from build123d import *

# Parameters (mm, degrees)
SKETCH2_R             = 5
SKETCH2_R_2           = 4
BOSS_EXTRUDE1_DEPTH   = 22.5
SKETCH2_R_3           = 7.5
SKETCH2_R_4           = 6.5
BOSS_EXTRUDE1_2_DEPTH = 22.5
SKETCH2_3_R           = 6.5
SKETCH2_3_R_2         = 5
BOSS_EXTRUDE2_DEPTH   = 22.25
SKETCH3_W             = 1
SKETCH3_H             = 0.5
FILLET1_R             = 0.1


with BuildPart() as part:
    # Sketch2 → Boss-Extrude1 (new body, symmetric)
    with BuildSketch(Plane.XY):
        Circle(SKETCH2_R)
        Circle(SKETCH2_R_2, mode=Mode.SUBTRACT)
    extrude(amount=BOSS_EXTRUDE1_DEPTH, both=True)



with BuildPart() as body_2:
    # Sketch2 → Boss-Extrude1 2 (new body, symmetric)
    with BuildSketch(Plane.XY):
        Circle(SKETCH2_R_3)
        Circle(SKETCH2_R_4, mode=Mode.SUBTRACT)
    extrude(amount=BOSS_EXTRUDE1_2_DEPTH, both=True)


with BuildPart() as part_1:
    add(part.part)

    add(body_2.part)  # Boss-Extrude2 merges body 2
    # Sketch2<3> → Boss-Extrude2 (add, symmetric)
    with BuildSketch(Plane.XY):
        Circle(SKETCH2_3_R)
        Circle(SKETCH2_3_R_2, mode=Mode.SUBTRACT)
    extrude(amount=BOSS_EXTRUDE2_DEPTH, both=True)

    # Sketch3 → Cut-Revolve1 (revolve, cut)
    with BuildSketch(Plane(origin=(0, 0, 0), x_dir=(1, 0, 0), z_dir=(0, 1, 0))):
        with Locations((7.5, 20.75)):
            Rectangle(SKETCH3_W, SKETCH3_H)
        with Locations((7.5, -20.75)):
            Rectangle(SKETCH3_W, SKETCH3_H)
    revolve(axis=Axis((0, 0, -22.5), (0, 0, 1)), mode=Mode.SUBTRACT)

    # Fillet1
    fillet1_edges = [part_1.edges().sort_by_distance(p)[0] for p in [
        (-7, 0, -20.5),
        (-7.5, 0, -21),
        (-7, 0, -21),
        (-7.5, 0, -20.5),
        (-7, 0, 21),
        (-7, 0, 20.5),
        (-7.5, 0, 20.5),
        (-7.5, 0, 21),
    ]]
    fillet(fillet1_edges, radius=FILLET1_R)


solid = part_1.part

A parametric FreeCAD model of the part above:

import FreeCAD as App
import Part
import Sketcher

V = App.Vector
Q = App.Units.Quantity


def edges_at(feature, points):
    """Names of the edges that pass closest to the given points."""
    edges = feature.Shape.Edges
    near = lambda p: min(range(len(edges)), key=lambda i: edges[i].distToShape(Part.Vertex(*p))[0])
    return sorted({f"Edge{near(p) + 1}" for p in points})


def add_polygon(sketch, points):
    """Adds a closed chain of lines whose ends are joined by coincident constraints."""
    first, n = sketch.GeometryCount, len(points)
    for a, b in zip(points, points[1:] + points[:1]):
        sketch.addGeometry(Part.LineSegment(App.Vector(*a, 0), App.Vector(*b, 0)), False)
    for i in range(n):
        sketch.addConstraint(Sketcher.Constraint("Coincident", first + i, 2, first + (i + 1) % n, 1))

doc = App.newDocument("Part")
body = doc.addObject("PartDesign::Body", "Body")

# Sketch on XY plane
sketch1 = doc.addObject("Sketcher::SketchObject", "Sketch")
body.addObject(sketch1)
sketch1.AttachmentSupport = (doc.XY_Plane, [""])
sketch1.MapMode = "FlatFace"
sketch1.addGeometry(Part.Circle(V(0, 0, 0), V(0, 0, 1), 5), False)
sketch1.addGeometry(Part.Circle(V(0, 0, 0), V(0, 0, 1), 4), False)
sketch1.addConstraint(Sketcher.Constraint("Coincident", 0, 3, -1, 1))
sketch1.addConstraint(Sketcher.Constraint("Coincident", 1, 3, -1, 1))
sketch1.addConstraint(Sketcher.Constraint("Diameter", 0, Q("10 mm")))
sketch1.addConstraint(Sketcher.Constraint("Diameter", 1, Q("8 mm")))
pad1 = doc.addObject("PartDesign::Pad", "Pad")
body.addObject(pad1)
pad1.Profile = sketch1
pad1.Length = 45
pad1.Midplane = True
body2 = doc.addObject("PartDesign::Body", "Body001")

# Sketch on XY plane
sketch2 = doc.addObject("Sketcher::SketchObject", "Sketch001")
body2.addObject(sketch2)
sketch2.AttachmentSupport = (doc.getObject("XY_Plane001"), [""])
sketch2.MapMode = "FlatFace"
sketch2.addGeometry(Part.Circle(V(0, 0, 0), V(0, 0, 1), 8), False)
sketch2.addGeometry(Part.Circle(V(0, 0, 0), V(0, 0, 1), 6), False)
sketch2.addConstraint(Sketcher.Constraint("Coincident", 0, 3, -1, 1))
sketch2.addConstraint(Sketcher.Constraint("Coincident", 1, 3, -1, 1))
sketch2.addConstraint(Sketcher.Constraint("Diameter", 0, Q("15 mm")))
sketch2.addConstraint(Sketcher.Constraint("Diameter", 1, Q("13 mm")))
pad2 = doc.addObject("PartDesign::Pad", "Pad001")
body2.addObject(pad2)
pad2.Profile = sketch2
pad2.Length = 45
pad2.Midplane = True
body.AllowCompound = True
doc.recompute()

boolean = doc.addObject("PartDesign::Boolean", "Boolean")
body.addObject(boolean)
boolean.Type = "Fuse"
boolean.addObjects([body2])

# Sketch on XY plane
sketch3 = doc.addObject("Sketcher::SketchObject", "Sketch002")
body.addObject(sketch3)
sketch3.AttachmentSupport = (doc.XY_Plane, [""])
sketch3.MapMode = "FlatFace"
sketch3.addGeometry(Part.Circle(V(0, 0, 0), V(0, 0, 1), 6), False)
sketch3.addGeometry(Part.Circle(V(0, 0, 0), V(0, 0, 1), 5), False)
sketch3.addConstraint(Sketcher.Constraint("Coincident", 0, 3, -1, 1))
sketch3.addConstraint(Sketcher.Constraint("Coincident", 1, 3, -1, 1))
sketch3.addConstraint(Sketcher.Constraint("Diameter", 0, Q("13 mm")))
sketch3.addConstraint(Sketcher.Constraint("Diameter", 1, Q("10 mm")))
pad3 = doc.addObject("PartDesign::Pad", "Pad002")
body.addObject(pad3)
pad3.Profile = sketch3
pad3.Length = 44.5
pad3.Midplane = True

# Sketch on XZ plane
sketch4 = doc.addObject("Sketcher::SketchObject", "Sketch003")
body.addObject(sketch4)
sketch4.AttachmentSupport = (doc.XZ_Plane, [""])
sketch4.MapMode = "FlatFace"
add_polygon(sketch4, [(7, -21), (7, -20.5), (8, -20.5), (8, -21)])  # lines 0-3
add_polygon(sketch4, [(7, 20.5), (7, 21), (8, 21), (8, 20.5)])  # lines 4-7
sketch4.addConstraint(Sketcher.Constraint("Vertical", 0))
sketch4.addConstraint(Sketcher.Constraint("Horizontal", 1))
sketch4.addConstraint(Sketcher.Constraint("Vertical", 2))
sketch4.addConstraint(Sketcher.Constraint("Horizontal", 3))
sketch4.addConstraint(Sketcher.Constraint("Vertical", 4))
sketch4.addConstraint(Sketcher.Constraint("Horizontal", 5))
sketch4.addConstraint(Sketcher.Constraint("Vertical", 6))
sketch4.addConstraint(Sketcher.Constraint("Horizontal", 7))
sketch4.addConstraint(Sketcher.Constraint("Symmetric", 3, 2, 4, 2, -1))
sketch4.addConstraint(Sketcher.Constraint("Symmetric", 1, 2, 6, 2, -1))
sketch4.addConstraint(Sketcher.Constraint("DistanceX", 1, 1, 1, 2, Q("1 mm")))
sketch4.addConstraint(Sketcher.Constraint("DistanceY", 0, 1, 0, 2, Q("0.5 mm")))
sketch4.addConstraint(Sketcher.Constraint("DistanceX", -1, 1, 0, 2, Q("7 mm")))
sketch4.addConstraint(Sketcher.Constraint("DistanceY", 2, 2, -1, 1, Q("21 mm")))
groove = doc.addObject("PartDesign::Groove", "Groove")
body.addObject(groove)
groove.Profile = sketch4
groove.ReferenceAxis = (sketch4, ["V_Axis"])
groove.Angle = 360
doc.recompute()

fillet = doc.addObject("PartDesign::Fillet", "Fillet")
body.addObject(fillet)
fillet.Base = (groove, edges_at(groove, [
    (-7, 0, -20.5),
    (-7.5, 0, -21),
    (-7, 0, -21),
    (-7.5, 0, -20.5),
    (-7, 0, 21),
    (-7, 0, 20.5),
    (-7.5, 0, 20.5),
    (-7.5, 0, 21),
]))
fillet.Radius = 0.1

doc.recompute()
